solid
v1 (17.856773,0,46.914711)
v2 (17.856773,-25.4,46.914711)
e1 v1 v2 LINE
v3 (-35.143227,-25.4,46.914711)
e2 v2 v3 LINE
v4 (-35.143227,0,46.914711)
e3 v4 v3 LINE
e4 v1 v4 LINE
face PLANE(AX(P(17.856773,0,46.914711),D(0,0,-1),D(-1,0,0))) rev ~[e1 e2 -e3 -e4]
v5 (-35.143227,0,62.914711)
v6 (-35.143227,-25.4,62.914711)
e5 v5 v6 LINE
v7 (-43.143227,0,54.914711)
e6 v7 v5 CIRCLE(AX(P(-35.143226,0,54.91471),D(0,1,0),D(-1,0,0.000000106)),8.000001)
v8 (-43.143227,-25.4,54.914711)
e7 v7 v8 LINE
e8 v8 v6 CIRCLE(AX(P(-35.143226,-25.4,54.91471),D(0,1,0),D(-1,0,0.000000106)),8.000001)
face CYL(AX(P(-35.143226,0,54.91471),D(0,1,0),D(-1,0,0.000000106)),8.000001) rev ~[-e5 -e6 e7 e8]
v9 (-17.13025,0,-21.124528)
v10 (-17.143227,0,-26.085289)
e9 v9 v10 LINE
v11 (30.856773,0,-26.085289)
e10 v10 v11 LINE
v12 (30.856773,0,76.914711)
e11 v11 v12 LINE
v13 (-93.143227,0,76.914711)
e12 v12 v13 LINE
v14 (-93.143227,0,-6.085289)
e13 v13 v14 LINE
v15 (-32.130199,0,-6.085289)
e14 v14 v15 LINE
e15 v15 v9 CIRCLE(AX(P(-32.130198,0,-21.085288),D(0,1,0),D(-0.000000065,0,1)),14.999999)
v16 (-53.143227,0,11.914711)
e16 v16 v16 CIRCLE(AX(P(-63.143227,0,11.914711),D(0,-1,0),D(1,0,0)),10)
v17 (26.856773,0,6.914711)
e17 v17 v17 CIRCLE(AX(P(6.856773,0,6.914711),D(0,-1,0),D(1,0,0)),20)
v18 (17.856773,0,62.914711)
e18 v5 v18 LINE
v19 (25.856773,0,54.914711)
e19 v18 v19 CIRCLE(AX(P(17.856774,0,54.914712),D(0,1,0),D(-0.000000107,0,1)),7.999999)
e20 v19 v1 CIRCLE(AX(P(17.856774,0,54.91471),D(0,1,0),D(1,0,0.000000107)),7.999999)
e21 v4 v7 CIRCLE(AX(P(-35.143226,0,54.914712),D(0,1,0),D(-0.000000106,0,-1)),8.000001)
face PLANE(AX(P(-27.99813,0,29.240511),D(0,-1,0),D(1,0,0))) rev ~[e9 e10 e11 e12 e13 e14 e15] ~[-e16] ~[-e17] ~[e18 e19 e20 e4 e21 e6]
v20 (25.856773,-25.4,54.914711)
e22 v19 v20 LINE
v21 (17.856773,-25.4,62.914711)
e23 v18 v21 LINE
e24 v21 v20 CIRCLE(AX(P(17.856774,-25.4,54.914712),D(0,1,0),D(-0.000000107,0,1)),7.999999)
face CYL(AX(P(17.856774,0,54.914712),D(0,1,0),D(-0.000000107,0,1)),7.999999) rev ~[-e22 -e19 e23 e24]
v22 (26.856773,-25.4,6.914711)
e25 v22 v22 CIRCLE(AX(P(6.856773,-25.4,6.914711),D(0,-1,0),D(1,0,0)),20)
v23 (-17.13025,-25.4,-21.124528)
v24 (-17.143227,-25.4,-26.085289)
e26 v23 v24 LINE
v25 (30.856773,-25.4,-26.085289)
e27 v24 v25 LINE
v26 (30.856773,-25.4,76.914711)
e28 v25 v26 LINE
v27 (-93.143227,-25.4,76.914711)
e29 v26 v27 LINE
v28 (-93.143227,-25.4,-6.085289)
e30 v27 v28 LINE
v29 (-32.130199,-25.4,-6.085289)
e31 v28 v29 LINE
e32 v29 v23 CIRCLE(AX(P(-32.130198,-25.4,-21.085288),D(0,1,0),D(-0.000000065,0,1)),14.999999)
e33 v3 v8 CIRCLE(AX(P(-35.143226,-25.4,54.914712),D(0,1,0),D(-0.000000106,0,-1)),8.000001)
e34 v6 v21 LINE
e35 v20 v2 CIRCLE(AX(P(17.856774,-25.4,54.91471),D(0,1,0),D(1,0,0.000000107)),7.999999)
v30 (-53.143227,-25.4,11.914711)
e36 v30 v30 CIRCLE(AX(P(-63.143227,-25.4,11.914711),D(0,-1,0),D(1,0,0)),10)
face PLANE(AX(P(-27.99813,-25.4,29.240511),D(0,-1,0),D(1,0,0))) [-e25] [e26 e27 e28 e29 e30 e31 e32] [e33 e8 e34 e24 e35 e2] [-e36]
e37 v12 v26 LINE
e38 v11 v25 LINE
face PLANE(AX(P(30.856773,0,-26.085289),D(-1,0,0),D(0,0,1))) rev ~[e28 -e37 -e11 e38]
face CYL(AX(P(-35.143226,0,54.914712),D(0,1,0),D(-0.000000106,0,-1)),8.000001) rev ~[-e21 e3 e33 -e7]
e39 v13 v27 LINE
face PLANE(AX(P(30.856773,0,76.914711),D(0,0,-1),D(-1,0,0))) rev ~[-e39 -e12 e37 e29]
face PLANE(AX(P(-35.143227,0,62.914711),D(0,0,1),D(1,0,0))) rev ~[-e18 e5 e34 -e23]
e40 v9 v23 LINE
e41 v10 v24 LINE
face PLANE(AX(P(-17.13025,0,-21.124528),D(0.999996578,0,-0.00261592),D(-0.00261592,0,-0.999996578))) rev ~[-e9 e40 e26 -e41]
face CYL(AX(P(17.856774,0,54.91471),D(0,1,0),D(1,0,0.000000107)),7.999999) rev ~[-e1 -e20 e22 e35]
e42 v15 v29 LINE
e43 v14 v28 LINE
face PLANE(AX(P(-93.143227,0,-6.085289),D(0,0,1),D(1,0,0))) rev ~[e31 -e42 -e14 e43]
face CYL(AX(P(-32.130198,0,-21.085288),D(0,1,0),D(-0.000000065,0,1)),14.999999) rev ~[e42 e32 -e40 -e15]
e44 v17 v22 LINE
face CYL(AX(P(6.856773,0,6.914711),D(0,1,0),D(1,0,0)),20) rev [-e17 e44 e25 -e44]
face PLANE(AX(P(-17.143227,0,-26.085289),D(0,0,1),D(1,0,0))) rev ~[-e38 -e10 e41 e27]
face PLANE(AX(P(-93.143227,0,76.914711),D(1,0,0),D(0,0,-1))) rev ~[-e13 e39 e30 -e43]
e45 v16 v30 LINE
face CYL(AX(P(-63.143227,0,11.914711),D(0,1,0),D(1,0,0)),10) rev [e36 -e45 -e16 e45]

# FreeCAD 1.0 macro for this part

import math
import FreeCAD as App
import Part
import Sketcher
Q = App.Units.Quantity

doc = App.newDocument("Part")
body = doc.addObject("PartDesign::Body", "Body")

sketch1 = body.newObject("Sketcher::SketchObject", "Sketch")
sketch1.AttachmentSupport = (doc.getObject("XZ_Plane"), [""])
sketch1.MapMode = "FlatFace"
sketch1.addGeometry([
    Part.LineSegment(App.Vector(-93.1, 76.9, 0), App.Vector(-93.1, -6.1, 0)),
    Part.LineSegment(App.Vector(-93.1, -6.1, 0), App.Vector(-32.1, -6.1, 0)),
    Part.ArcOfCircle(Part.Circle(App.Vector(-32.1, -21.1, 0), App.Vector(0, 0, 1), 15), math.radians(0), math.radians(90)),
    Part.LineSegment(App.Vector(-17.1, -21.1, 0), App.Vector(-17.1, -26.1, 0)),
    Part.LineSegment(App.Vector(-17.1, -26.1, 0), App.Vector(30.9, -26.1, 0)),
    Part.LineSegment(App.Vector(30.9, -26.1, 0), App.Vector(30.9, 76.9, 0)),
    Part.LineSegment(App.Vector(30.9, 76.9, 0), App.Vector(-93.1, 76.9, 0)),
    Part.Circle(App.Vector(-63.1, 11.9, 0), App.Vector(0, 0, 1), 10),
    Part.Circle(App.Vector(6.9, 6.9, 0), App.Vector(0, 0, 1), 20),
    Part.ArcOfCircle(Part.Circle(App.Vector(17.9, 54.9, 0), App.Vector(0, 0, 1), 8), math.radians(0), math.radians(90)),
    Part.ArcOfCircle(Part.Circle(App.Vector(17.9, 54.9, 0), App.Vector(0, 0, 1), 8), math.radians(-90), math.radians(0)),
    Part.LineSegment(App.Vector(17.9, 46.9, 0), App.Vector(-35.1, 46.9, 0)),
    Part.ArcOfCircle(Part.Circle(App.Vector(-35.1, 54.9, 0), App.Vector(0, 0, 1), 8), math.radians(-180), math.radians(-90)),
    Part.ArcOfCircle(Part.Circle(App.Vector(-35.1, 54.9, 0), App.Vector(0, 0, 1), 8), math.radians(90), math.radians(180)),
    Part.LineSegment(App.Vector(-35.1, 62.9, 0), App.Vector(17.9, 62.9, 0)),
], False)
sketch1.addConstraint([
    Sketcher.Constraint("Coincident", 0, 2, 1, 1),
    Sketcher.Constraint("Tangent", 1, 2, 2, 2),
    Sketcher.Constraint("Tangent", 2, 1, 3, 1),
    Sketcher.Constraint("Coincident", 3, 2, 4, 1),
    Sketcher.Constraint("Coincident", 4, 2, 5, 1),
    Sketcher.Constraint("Coincident", 5, 2, 6, 1),
    Sketcher.Constraint("Coincident", 6, 2, 0, 1),
    Sketcher.Constraint("Tangent", 9, 1, 10, 2),
    Sketcher.Constraint("Tangent", 10, 1, 11, 1),
    Sketcher.Constraint("Tangent", 11, 2, 12, 2),
    Sketcher.Constraint("Tangent", 12, 1, 13, 2),
    Sketcher.Constraint("Tangent", 13, 1, 14, 1),
    Sketcher.Constraint("Tangent", 14, 2, 9, 2),
    Sketcher.Constraint("Vertical", 0),
    Sketcher.Constraint("Horizontal", 1),
    Sketcher.Constraint("Horizontal", 4),
    Sketcher.Constraint("Vertical", 5),
    Sketcher.Constraint("Horizontal", 6),
    Sketcher.Constraint("Horizontal", 11),
    Sketcher.Constraint("Horizontal", 14),
    Sketcher.Constraint("Equal", 9, 10),
    Sketcher.Constraint("Equal", 10, 12),
    Sketcher.Constraint("Horizontal", 13, 3, 9, 1),
    Sketcher.Constraint("Horizontal", 9, 1, 12, 1),
    Sketcher.Constraint("Diameter", 7, Q("20 mm")),
    Sketcher.Constraint("Diameter", 8, Q("40 mm")),
    Sketcher.Constraint("Radius", 2, Q("14.999999 mm")),
    Sketcher.Constraint("Radius", 9, Q("7.999999 mm")),
    Sketcher.Constraint("DistanceX", 4, 1, 4, 2, Q("48 mm")),
    Sketcher.Constraint("DistanceX", 6, 2, 6, 1, Q("124 mm")),
    Sketcher.Constraint("DistanceX", 11, 2, 11, 1, Q("53 mm")),
    Sketcher.Constraint("DistanceY", 0, 2, 0, 1, Q("83 mm")),
    Sketcher.Constraint("DistanceY", 5, 1, 5, 2, Q("103 mm")),
    Sketcher.Constraint("DistanceY", 2, 3, 7, 3, Q("32.999999 mm")),
    Sketcher.Constraint("DistanceY", 2, 3, 8, 3, Q("27.999999 mm")),
    Sketcher.Constraint("DistanceX", 7, 3, 8, 3, Q("70 mm")),
    Sketcher.Constraint("DistanceX", 8, 3, 9, 3, Q("11.000001 mm")),
    Sketcher.Constraint("DistanceY", 8, 3, 9, 3, Q("48.000001 mm")),
    Sketcher.Constraint("DistanceX", 0, 2, 7, 3, Q("30 mm")),
    Sketcher.Constraint("DistanceX", 2, 3, -1, 1, Q("32.130198 mm")),
    Sketcher.Constraint("DistanceX", 1, 1, 1, 2, Q("61.013028 mm")),
    Sketcher.Constraint("DistanceY", 2, 3, -1, 1, Q("21.085288 mm")),
])
pad1 = body.newObject("PartDesign::Pad", "Pad")
pad1.Profile = sketch1
pad1.Length = 25.4

doc.recompute()
